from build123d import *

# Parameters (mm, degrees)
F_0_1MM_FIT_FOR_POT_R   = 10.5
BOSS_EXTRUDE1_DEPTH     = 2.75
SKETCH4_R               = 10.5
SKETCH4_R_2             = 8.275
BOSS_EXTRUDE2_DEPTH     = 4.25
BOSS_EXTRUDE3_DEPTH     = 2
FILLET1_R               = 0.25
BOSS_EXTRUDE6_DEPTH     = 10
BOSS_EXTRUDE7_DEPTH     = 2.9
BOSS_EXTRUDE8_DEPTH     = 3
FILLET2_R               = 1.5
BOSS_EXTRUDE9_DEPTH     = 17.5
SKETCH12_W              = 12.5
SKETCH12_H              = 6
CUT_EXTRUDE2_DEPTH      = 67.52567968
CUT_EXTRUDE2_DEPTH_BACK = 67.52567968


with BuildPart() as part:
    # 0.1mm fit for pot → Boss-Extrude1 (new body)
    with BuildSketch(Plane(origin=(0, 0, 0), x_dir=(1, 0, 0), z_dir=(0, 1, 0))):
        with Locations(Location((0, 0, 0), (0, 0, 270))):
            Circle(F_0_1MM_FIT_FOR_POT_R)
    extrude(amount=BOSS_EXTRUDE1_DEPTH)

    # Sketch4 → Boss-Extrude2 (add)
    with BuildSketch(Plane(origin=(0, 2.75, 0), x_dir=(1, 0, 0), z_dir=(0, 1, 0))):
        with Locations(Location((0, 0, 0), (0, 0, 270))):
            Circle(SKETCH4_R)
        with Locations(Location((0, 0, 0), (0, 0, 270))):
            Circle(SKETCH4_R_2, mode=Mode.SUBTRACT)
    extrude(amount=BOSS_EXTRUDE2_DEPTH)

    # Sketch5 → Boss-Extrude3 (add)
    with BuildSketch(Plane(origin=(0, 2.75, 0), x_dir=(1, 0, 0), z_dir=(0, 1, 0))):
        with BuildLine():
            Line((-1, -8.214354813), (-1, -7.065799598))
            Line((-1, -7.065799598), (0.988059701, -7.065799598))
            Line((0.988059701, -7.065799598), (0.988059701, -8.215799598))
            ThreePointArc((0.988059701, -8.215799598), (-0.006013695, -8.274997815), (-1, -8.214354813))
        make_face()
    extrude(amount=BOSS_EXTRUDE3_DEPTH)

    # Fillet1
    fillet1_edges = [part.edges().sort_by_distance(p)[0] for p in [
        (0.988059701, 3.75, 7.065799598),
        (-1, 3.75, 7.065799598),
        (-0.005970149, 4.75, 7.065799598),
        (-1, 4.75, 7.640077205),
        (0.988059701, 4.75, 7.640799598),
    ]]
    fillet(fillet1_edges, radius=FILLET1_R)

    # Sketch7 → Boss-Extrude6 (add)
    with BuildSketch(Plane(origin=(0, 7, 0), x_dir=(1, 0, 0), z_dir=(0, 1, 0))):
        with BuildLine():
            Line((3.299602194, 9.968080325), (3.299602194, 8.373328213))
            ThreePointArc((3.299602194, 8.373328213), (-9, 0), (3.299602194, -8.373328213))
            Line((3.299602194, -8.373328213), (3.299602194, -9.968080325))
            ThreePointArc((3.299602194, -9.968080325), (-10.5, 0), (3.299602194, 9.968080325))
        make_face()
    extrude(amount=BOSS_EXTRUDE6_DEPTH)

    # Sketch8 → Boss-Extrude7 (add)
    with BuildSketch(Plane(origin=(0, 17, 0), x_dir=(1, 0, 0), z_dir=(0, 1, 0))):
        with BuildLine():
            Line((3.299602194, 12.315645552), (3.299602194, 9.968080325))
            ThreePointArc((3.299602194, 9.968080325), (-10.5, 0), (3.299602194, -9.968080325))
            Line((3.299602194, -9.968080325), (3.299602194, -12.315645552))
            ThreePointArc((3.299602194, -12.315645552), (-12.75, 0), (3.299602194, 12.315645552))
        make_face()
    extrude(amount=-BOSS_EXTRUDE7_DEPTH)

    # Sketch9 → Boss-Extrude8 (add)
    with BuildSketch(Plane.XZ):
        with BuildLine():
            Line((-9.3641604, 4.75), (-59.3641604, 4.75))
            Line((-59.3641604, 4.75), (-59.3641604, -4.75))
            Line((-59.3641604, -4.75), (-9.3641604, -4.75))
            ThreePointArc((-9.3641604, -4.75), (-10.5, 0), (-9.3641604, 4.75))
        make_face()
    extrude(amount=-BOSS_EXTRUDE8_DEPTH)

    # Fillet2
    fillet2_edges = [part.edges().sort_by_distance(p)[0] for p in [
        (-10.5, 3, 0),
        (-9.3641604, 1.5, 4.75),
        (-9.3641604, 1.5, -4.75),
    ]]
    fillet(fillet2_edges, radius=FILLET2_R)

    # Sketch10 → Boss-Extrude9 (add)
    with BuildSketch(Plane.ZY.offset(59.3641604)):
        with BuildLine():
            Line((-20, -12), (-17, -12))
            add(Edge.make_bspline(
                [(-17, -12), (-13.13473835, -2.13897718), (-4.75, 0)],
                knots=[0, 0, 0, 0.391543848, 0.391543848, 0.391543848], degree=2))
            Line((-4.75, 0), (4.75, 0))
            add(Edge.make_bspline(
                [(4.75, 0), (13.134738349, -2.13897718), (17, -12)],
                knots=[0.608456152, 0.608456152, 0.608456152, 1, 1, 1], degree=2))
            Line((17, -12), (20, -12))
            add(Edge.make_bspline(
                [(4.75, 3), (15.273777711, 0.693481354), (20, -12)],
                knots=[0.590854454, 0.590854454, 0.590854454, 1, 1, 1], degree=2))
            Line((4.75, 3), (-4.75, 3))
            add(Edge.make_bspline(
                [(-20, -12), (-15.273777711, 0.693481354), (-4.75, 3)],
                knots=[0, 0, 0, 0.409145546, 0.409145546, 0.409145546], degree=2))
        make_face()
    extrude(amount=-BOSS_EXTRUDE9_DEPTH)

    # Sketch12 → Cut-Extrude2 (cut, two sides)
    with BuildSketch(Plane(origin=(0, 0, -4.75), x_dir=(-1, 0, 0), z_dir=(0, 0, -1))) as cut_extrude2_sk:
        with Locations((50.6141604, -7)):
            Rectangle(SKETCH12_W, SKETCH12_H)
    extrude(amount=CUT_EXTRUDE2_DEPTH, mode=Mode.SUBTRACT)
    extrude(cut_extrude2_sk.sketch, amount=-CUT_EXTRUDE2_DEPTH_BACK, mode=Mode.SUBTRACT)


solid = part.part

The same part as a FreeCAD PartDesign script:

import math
import FreeCAD as App
import Part
import Sketcher
Q = App.Units.Quantity


def edges_at(feature, points):
    """Names of the edges that pass closest to the given points."""
    edges = feature.Shape.Edges
    near = lambda p: min(range(len(edges)), key=lambda i: edges[i].distToShape(Part.Vertex(*p))[0])
    return sorted({f"Edge{near(p) + 1}" for p in points})

doc = App.newDocument("Part")
body = doc.addObject("PartDesign::Body", "Body")

# Sketch on XZ plane
sketch1 = doc.addObject("Sketcher::SketchObject", "Sketch")
body.addObject(sketch1)
sketch1.AttachmentSupport = (doc.XZ_Plane, [""])
sketch1.MapMode = "FlatFace"
sketch1.addGeometry(Part.Circle(App.Vector(0, 0, 0), App.Vector(0, 0, 1), 10), False)
sketch1.addConstraint(Sketcher.Constraint("Coincident", 0, 3, -1, 1))
sketch1.addConstraint(Sketcher.Constraint("Diameter", 0, Q("21 mm")))
pad1 = doc.addObject("PartDesign::Pad", "Pad")
body.addObject(pad1)
pad1.Profile = sketch1
pad1.Length = 2.75
pad1.Reversed = True

# Sketch on XZ plane
sketch2 = doc.addObject("Sketcher::SketchObject", "Sketch001")
body.addObject(sketch2)
sketch2.AttachmentSupport = (doc.XZ_Plane, [""])
sketch2.MapMode = "FlatFace"
sketch2.AttachmentOffset = App.Placement(App.Vector(0, 0, -2.75), App.Rotation())
sketch2.addGeometry(Part.Circle(App.Vector(0, 0, 0), App.Vector(0, 0, 1), 10), False)
sketch2.addGeometry(Part.Circle(App.Vector(0, 0, 0), App.Vector(0, 0, 1), 8), False)
sketch2.addConstraint(Sketcher.Constraint("Coincident", 0, 3, -1, 1))
sketch2.addConstraint(Sketcher.Constraint("Coincident", 1, 3, -1, 1))
sketch2.addConstraint(Sketcher.Constraint("Diameter", 0, Q("21 mm")))
sketch2.addConstraint(Sketcher.Constraint("Diameter", 1, Q("16.55 mm")))
pad2 = doc.addObject("PartDesign::Pad", "Pad001")
body.addObject(pad2)
pad2.Profile = sketch2
pad2.Length = 4.25
pad2.Reversed = True

# Sketch on XZ plane
sketch3 = doc.addObject("Sketcher::SketchObject", "Sketch002")
body.addObject(sketch3)
sketch3.AttachmentSupport = (doc.XZ_Plane, [""])
sketch3.MapMode = "FlatFace"
sketch3.AttachmentOffset = App.Placement(App.Vector(0, 0, -2.75), App.Rotation())
sketch3.addGeometry(Part.LineSegment(App.Vector(-1, 7.1, 0), App.Vector(-1, 8.2, 0)), False)
sketch3.addGeometry(Part.ArcOfCircle(Part.Circle(App.Vector(0, 0, 0), App.Vector(0, 0, 1), 8.3), math.radians(83.14), math.radians(96.94)), False)
sketch3.addGeometry(Part.LineSegment(App.Vector(1, 8.2, 0), App.Vector(1, 7.1, 0)), False)
sketch3.addGeometry(Part.LineSegment(App.Vector(1, 7.1, 0), App.Vector(-1, 7.1, 0)), False)
sketch3.addConstraint(Sketcher.Constraint("Coincident", 0, 2, 1, 2))
sketch3.addConstraint(Sketcher.Constraint("Coincident", 1, 1, 2, 1))
sketch3.addConstraint(Sketcher.Constraint("Coincident", 2, 2, 3, 1))
sketch3.addConstraint(Sketcher.Constraint("Coincident", 3, 2, 0, 1))
sketch3.addConstraint(Sketcher.Constraint("Vertical", 0))
sketch3.addConstraint(Sketcher.Constraint("Vertical", 2))
sketch3.addConstraint(Sketcher.Constraint("Horizontal", 3))
sketch3.addConstraint(Sketcher.Constraint("Coincident", 1, 3, -1, 1))
sketch3.addConstraint(Sketcher.Constraint("DistanceX", 0, 2, -1, 1, Q("1 mm")))
sketch3.addConstraint(Sketcher.Constraint("Radius", 1, Q("8.275 mm")))
sketch3.addConstraint(Sketcher.Constraint("DistanceY", 2, 2, 2, 1, Q("1.15 mm")))
sketch3.addConstraint(Sketcher.Constraint("DistanceX", 3, 2, 3, 1, Q("1.98806 mm")))
pad3 = doc.addObject("PartDesign::Pad", "Pad002")
body.addObject(pad3)
pad3.Profile = sketch3
pad3.Length = 2
pad3.Reversed = True
doc.recompute()

fillet = doc.addObject("PartDesign::Fillet", "Fillet")
body.addObject(fillet)
fillet.Base = (pad3, edges_at(pad3, [
    (0.988, 3.75, 7.066),
    (-1, 3.75, 7.066),
    (-0.006, 4.75, 7.066),
    (-1, 4.75, 7.64),
    (0.988, 4.75, 7.641),
]))
fillet.Radius = 0.25

# Sketch on XZ plane
sketch4 = doc.addObject("Sketcher::SketchObject", "Sketch003")
body.addObject(sketch4)
sketch4.AttachmentSupport = (doc.XZ_Plane, [""])
sketch4.MapMode = "FlatFace"
sketch4.AttachmentOffset = App.Placement(App.Vector(0, 0, -7), App.Rotation())
sketch4.addGeometry(Part.LineSegment(App.Vector(3.3, -8.4, 0), App.Vector(3.3, -10, 0)), False)
sketch4.addGeometry(Part.ArcOfCircle(Part.Circle(App.Vector(0, 0, 0), App.Vector(0, 0, 1), 10.5), math.radians(72), math.radians(288)), False)
sketch4.addGeometry(Part.LineSegment(App.Vector(3.3, 10, 0), App.Vector(3.3, 8.4, 0)), False)
sketch4.addGeometry(Part.ArcOfCircle(Part.Circle(App.Vector(0, 0, 0), App.Vector(0, 0, 1), 9), math.radians(68), math.radians(292)), False)
sketch4.addConstraint(Sketcher.Constraint("Coincident", 0, 2, 1, 2))
sketch4.addConstraint(Sketcher.Constraint("Coincident", 1, 1, 2, 1))
sketch4.addConstraint(Sketcher.Constraint("Coincident", 2, 2, 3, 1))
sketch4.addConstraint(Sketcher.Constraint("Coincident", 3, 2, 0, 1))
sketch4.addConstraint(Sketcher.Constraint("Vertical", 0))
sketch4.addConstraint(Sketcher.Constraint("Vertical", 2))
sketch4.addConstraint(Sketcher.Constraint("Coincident", 1, 3, -1, 1))
sketch4.addConstraint(Sketcher.Constraint("Coincident", 3, 3, -1, 1))
sketch4.addConstraint(Sketcher.Constraint("Vertical", 0, 2, 1, 1))
sketch4.addConstraint(Sketcher.Constraint("Radius", 3, Q("9 mm")))
sketch4.addConstraint(Sketcher.Constraint("Radius", 1, Q("10.5 mm")))
sketch4.addConstraint(Sketcher.Constraint("DistanceY", 0, 2, 0, 1, Q("1.594752 mm")))
pad4 = doc.addObject("PartDesign::Pad", "Pad003")
body.addObject(pad4)
pad4.Profile = sketch4
pad4.Length = 10
pad4.Reversed = True

# Sketch on XZ plane
sketch5 = doc.addObject("Sketcher::SketchObject", "Sketch004")
body.addObject(sketch5)
sketch5.AttachmentSupport = (doc.XZ_Plane, [""])
sketch5.MapMode = "FlatFace"
sketch5.AttachmentOffset = App.Placement(App.Vector(0, 0, -17), App.Rotation())
sketch5.addGeometry(Part.LineSegment(App.Vector(3.3, -10, 0), App.Vector(3.3, -12.3, 0)), False)
sketch5.addGeometry(Part.ArcOfCircle(Part.Circle(App.Vector(0, 0, 0), App.Vector(0, 0, 1), 12.8), math.radians(75), math.radians(285)), False)
sketch5.addGeometry(Part.LineSegment(App.Vector(3.3, 12.3, 0), App.Vector(3.3, 10, 0)), False)
sketch5.addGeometry(Part.ArcOfCircle(Part.Circle(App.Vector(0, 0, 0), App.Vector(0, 0, 1), 10.5), math.radians(72), math.radians(288)), False)
sketch5.addConstraint(Sketcher.Constraint("Coincident", 0, 2, 1, 2))
sketch5.addConstraint(Sketcher.Constraint("Coincident", 1, 1, 2, 1))
sketch5.addConstraint(Sketcher.Constraint("Coincident", 2, 2, 3, 1))
sketch5.addConstraint(Sketcher.Constraint("Coincident", 3, 2, 0, 1))
sketch5.addConstraint(Sketcher.Constraint("Vertical", 0))
sketch5.addConstraint(Sketcher.Constraint("Vertical", 2))
sketch5.addConstraint(Sketcher.Constraint("Coincident", 1, 3, -1, 1))
sketch5.addConstraint(Sketcher.Constraint("Coincident", 3, 3, -1, 1))
sketch5.addConstraint(Sketcher.Constraint("Vertical", 0, 2, 1, 1))
sketch5.addConstraint(Sketcher.Constraint("Radius", 3, Q("10.5 mm")))
sketch5.addConstraint(Sketcher.Constraint("Radius", 1, Q("12.75 mm")))
sketch5.addConstraint(Sketcher.Constraint("DistanceY", 0, 2, 0, 1, Q("2.347565 mm")))
pad5 = doc.addObject("PartDesign::Pad", "Pad004")
body.addObject(pad5)
pad5.Profile = sketch5
pad5.Length = 2.9

# Sketch on XZ plane
sketch6 = doc.addObject("Sketcher::SketchObject", "Sketch005")
body.addObject(sketch6)
sketch6.AttachmentSupport = (doc.XZ_Plane, [""])
sketch6.MapMode = "FlatFace"
sketch6.addGeometry(Part.LineSegment(App.Vector(-9, 5, 0), App.Vector(-59, 5, 0)), False)
sketch6.addGeometry(Part.LineSegment(App.Vector(-59, 5, 0), App.Vector(-59, -5, 0)), False)
sketch6.addGeometry(Part.LineSegment(App.Vector(-59, -5, 0), App.Vector(-9, -5, 0)), False)
sketch6.addGeometry(Part.ArcOfCircle(Part.Circle(App.Vector(0, 0, 0), App.Vector(0, 0, 1), 10), math.radians(153), math.radians(207)), False)
sketch6.addConstraint(Sketcher.Constraint("Coincident", 0, 2, 1, 1))
sketch6.addConstraint(Sketcher.Constraint("Coincident", 1, 2, 2, 1))
sketch6.addConstraint(Sketcher.Constraint("Coincident", 2, 2, 3, 2))
sketch6.addConstraint(Sketcher.Constraint("Coincident", 3, 1, 0, 1))
sketch6.addConstraint(Sketcher.Constraint("Horizontal", 0))
sketch6.addConstraint(Sketcher.Constraint("Vertical", 1))
sketch6.addConstraint(Sketcher.Constraint("Horizontal", 2))
sketch6.addConstraint(Sketcher.Constraint("Coincident", 3, 3, -1, 1))
sketch6.addConstraint(Sketcher.Constraint("Vertical", 2, 2, 3, 1))
sketch6.addConstraint(Sketcher.Constraint("Radius", 3, Q("10.5 mm")))
sketch6.addConstraint(Sketcher.Constraint("DistanceX", 0, 2, 0, 1, Q("50 mm")))
sketch6.addConstraint(Sketcher.Constraint("DistanceY", 1, 2, 1, 1, Q("9.5 mm")))
pad6 = doc.addObject("PartDesign::Pad", "Pad005")
body.addObject(pad6)
pad6.Profile = sketch6
pad6.Length = 3
pad6.Reversed = True
doc.recompute()

fillet2 = doc.addObject("PartDesign::Fillet", "Fillet001")
body.addObject(fillet2)
fillet2.Base = (pad6, edges_at(pad6, [(-10.5, 3, 0), (-9.364, 1.5, 4.75), (-9.364, 1.5, -4.75)]))
fillet2.Radius = 1.5

# Sketch on YZ plane
sketch7 = doc.addObject("Sketcher::SketchObject", "Sketch006")
body.addObject(sketch7)
sketch7.AttachmentSupport = (doc.YZ_Plane, [""])
sketch7.MapMode = "FlatFace"
sketch7.AttachmentOffset = App.Placement(App.Vector(0, 0, -59.36416), App.Rotation())
sketch7.addGeometry(Part.LineSegment(App.Vector(-12, -20, 0), App.Vector(-12, -17, 0)), False)
sketch7.addGeometry(Part.BSplineCurve([App.Vector(-12, -17, 0), App.Vector(-2.138977, -13.134738, 0), App.Vector(0, -4.75, 0)], [3, 3], [0, 0.391543848], False, 2, [1, 1, 1], False), False)
sketch7.addGeometry(Part.LineSegment(App.Vector(0, -4.75, 0), App.Vector(0, 4.75, 0)), False)
sketch7.addGeometry(Part.BSplineCurve([App.Vector(0, 4.75, 0), App.Vector(-2.138977, 13.134738, 0), App.Vector(-12, 17, 0)], [3, 3], [0.608456152, 1], False, 2, [1, 1, 1], False), False)
sketch7.addGeometry(Part.LineSegment(App.Vector(-12, 17, 0), App.Vector(-12, 20, 0)), False)
sketch7.addGeometry(Part.BSplineCurve([App.Vector(3, 4.75, 0), App.Vector(0.693481, 15.273778, 0), App.Vector(-12, 20, 0)], [3, 3], [0.590854454, 1], False, 2, [1, 1, 1], False), False)
sketch7.addGeometry(Part.LineSegment(App.Vector(3, 4.75, 0), App.Vector(3, -4.75, 0)), False)
sketch7.addGeometry(Part.BSplineCurve([App.Vector(-12, -20, 0), App.Vector(0.693481, -15.273778, 0), App.Vector(3, -4.75, 0)], [3, 3], [0, 0.409145546], False, 2, [1, 1, 1], False), False)
sketch7.addConstraint(Sketcher.Constraint("Block", 1))
sketch7.addConstraint(Sketcher.Constraint("Block", 3))
sketch7.addConstraint(Sketcher.Constraint("Block", 5))
sketch7.addConstraint(Sketcher.Constraint("Block", 7))
sketch7.addConstraint(Sketcher.Constraint("Coincident", 0, 2, 1, 1))
sketch7.addConstraint(Sketcher.Constraint("Coincident", 1, 2, 2, 1))
sketch7.addConstraint(Sketcher.Constraint("Coincident", 2, 2, 3, 1))
sketch7.addConstraint(Sketcher.Constraint("Coincident", 3, 2, 4, 1))
sketch7.addConstraint(Sketcher.Constraint("Coincident", 4, 2, 5, 2))
sketch7.addConstraint(Sketcher.Constraint("Coincident", 5, 1, 6, 1))
sketch7.addConstraint(Sketcher.Constraint("Coincident", 6, 2, 7, 2))
sketch7.addConstraint(Sketcher.Constraint("Coincident", 7, 1, 0, 1))
pad7 = doc.addObject("PartDesign::Pad", "Pad006")
body.addObject(pad7)
pad7.Profile = sketch7
pad7.Length = 17.5

# Sketch on XY plane
sketch8 = doc.addObject("Sketcher::SketchObject", "Sketch007")
body.addObject(sketch8)
sketch8.AttachmentSupport = (doc.XY_Plane, [""])
sketch8.MapMode = "FlatFace"
sketch8.AttachmentOffset = App.Placement(App.Vector(0, 0, -4.75), App.Rotation())
sketch8.addGeometry(Part.LineSegment(App.Vector(-44, -4, 0), App.Vector(-44, -10, 0)), False)
sketch8.addGeometry(Part.LineSegment(App.Vector(-44, -10, 0), App.Vector(-57, -10, 0)), False)
sketch8.addGeometry(Part.LineSegment(App.Vector(-57, -10, 0), App.Vector(-57, -4, 0)), False)
sketch8.addGeometry(Part.LineSegment(App.Vector(-57, -4, 0), App.Vector(-44, -4, 0)), False)
sketch8.addConstraint(Sketcher.Constraint("Coincident", 0, 2, 1, 1))
sketch8.addConstraint(Sketcher.Constraint("Coincident", 1, 2, 2, 1))
sketch8.addConstraint(Sketcher.Constraint("Coincident", 2, 2, 3, 1))
sketch8.addConstraint(Sketcher.Constraint("Coincident", 3, 2, 0, 1))
sketch8.addConstraint(Sketcher.Constraint("Vertical", 0))
sketch8.addConstraint(Sketcher.Constraint("Horizontal", 1))
sketch8.addConstraint(Sketcher.Constraint("Vertical", 2))
sketch8.addConstraint(Sketcher.Constraint("Horizontal", 3))
sketch8.addConstraint(Sketcher.Constraint("DistanceY", 0, 2, 0, 1, Q("6 mm")))
sketch8.addConstraint(Sketcher.Constraint("DistanceX", 1, 2, 1, 1, Q("12.5 mm")))
sketch8.addConstraint(Sketcher.Constraint("DistanceY", 0, 2, -1, 1, Q("10 mm")))
sketch8.addConstraint(Sketcher.Constraint("DistanceX", 0, 2, -1, 1, Q("44.36416 mm")))
pocket1 = doc.addObject("PartDesign::Pocket", "Pocket")
body.addObject(pocket1)
pocket1.Profile = sketch8
pocket1.Type = "ThroughAll"
pocket1.Midplane = True

doc.recompute()
